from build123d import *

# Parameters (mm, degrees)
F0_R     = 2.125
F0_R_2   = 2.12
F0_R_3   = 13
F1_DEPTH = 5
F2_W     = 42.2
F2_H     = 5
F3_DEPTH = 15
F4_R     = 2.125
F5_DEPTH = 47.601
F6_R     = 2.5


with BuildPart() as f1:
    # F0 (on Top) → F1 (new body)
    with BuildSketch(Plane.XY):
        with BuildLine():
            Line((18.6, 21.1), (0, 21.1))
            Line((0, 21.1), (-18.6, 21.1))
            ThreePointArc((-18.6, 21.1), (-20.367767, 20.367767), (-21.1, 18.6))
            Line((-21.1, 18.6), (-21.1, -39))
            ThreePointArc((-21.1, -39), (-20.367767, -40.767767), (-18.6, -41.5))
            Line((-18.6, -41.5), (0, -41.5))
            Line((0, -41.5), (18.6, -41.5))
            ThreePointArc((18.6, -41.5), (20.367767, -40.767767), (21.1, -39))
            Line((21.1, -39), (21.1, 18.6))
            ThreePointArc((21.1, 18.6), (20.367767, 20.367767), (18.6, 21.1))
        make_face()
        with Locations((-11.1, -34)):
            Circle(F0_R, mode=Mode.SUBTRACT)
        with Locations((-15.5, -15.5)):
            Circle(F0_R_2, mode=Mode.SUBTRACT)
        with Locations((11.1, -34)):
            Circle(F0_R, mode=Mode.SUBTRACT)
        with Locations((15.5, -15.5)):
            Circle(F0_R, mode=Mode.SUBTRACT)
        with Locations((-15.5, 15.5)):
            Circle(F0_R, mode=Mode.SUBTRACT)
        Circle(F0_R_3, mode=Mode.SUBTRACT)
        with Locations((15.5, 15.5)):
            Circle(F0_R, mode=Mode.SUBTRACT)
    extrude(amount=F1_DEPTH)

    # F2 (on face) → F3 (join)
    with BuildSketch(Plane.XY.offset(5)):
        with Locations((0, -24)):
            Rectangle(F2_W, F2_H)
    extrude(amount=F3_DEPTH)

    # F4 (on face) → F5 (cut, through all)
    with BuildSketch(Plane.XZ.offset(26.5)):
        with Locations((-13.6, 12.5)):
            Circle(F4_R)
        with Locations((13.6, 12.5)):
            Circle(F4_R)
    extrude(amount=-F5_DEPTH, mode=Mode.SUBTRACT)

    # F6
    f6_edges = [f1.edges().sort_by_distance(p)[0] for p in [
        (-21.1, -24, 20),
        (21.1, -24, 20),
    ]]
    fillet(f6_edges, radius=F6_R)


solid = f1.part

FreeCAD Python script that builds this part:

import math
import FreeCAD as App
import Part
import Sketcher
from FreeCAD import Vector
Q = App.Units.Quantity


def edges_at(feature, points):
    """Names of the edges that pass closest to the given points."""
    edges = feature.Shape.Edges
    near = lambda p: min(range(len(edges)), key=lambda i: edges[i].distToShape(Part.Vertex(*p))[0])
    return sorted({f"Edge{near(p) + 1}" for p in points})

doc = App.newDocument("Part")
body = doc.addObject("PartDesign::Body", "Body")

sketch1 = doc.addObject("Sketcher::SketchObject", "Sketch")
body.addObject(sketch1)
sketch1.AttachmentSupport = (doc.XY_Plane, [""])
sketch1.MapMode = "FlatFace"
sketch1.addGeometry([
    Part.LineSegment(Vector(18.6, 21.1, 0), Vector(-18.6, 21.1, 0)),
    Part.ArcOfCircle(Part.Circle(Vector(-18.6, 18.6, 0), Vector(0, 0, 1), 2.5), math.radians(90), math.radians(180)),
    Part.LineSegment(Vector(-21.1, 18.6, 0), Vector(-21.1, -39, 0)),
    Part.ArcOfCircle(Part.Circle(Vector(-18.6, -39, 0), Vector(0, 0, 1), 2.5), math.radians(180), math.radians(270)),
    Part.LineSegment(Vector(-18.6, -41.5, 0), Vector(18.6, -41.5, 0)),
    Part.ArcOfCircle(Part.Circle(Vector(18.6, -39, 0), Vector(0, 0, 1), 2.5), math.radians(-90), math.radians(0)),
    Part.LineSegment(Vector(21.1, -39, 0), Vector(21.1, 18.6, 0)),
    Part.ArcOfCircle(Part.Circle(Vector(18.6, 18.6, 0), Vector(0, 0, 1), 2.5), math.radians(0), math.radians(90)),
    Part.Circle(Vector(-11.1, -34, 0), Vector(0, 0, 1), 2.1),
    Part.Circle(Vector(-15.5, -15.5, 0), Vector(0, 0, 1), 2.1),
    Part.Circle(Vector(11.1, -34, 0), Vector(0, 0, 1), 2.1),
    Part.Circle(Vector(15.5, -15.5, 0), Vector(0, 0, 1), 2.1),
    Part.Circle(Vector(-15.5, 15.5, 0), Vector(0, 0, 1), 2.1),
    Part.Circle(Vector(0, 0, 0), Vector(0, 0, 1), 13),
    Part.Circle(Vector(15.5, 15.5, 0), Vector(0, 0, 1), 2.1),
], False)
sketch1.addConstraint([
    Sketcher.Constraint("Tangent", 0, 2, 1, 1),
    Sketcher.Constraint("Tangent", 1, 2, 2, 1),
    Sketcher.Constraint("Tangent", 2, 2, 3, 1),
    Sketcher.Constraint("Tangent", 3, 2, 4, 1),
    Sketcher.Constraint("Tangent", 4, 2, 5, 1),
    Sketcher.Constraint("Tangent", 5, 2, 6, 1),
    Sketcher.Constraint("Tangent", 6, 2, 7, 1),
    Sketcher.Constraint("Tangent", 7, 2, 0, 1),
    Sketcher.Constraint("Horizontal", 0),
    Sketcher.Constraint("Vertical", 2),
    Sketcher.Constraint("Horizontal", 4),
    Sketcher.Constraint("Vertical", 6),
    Sketcher.Constraint("Coincident", 13, 3, -1, 1),
    Sketcher.Constraint("Equal", 1, 3),
    Sketcher.Constraint("Equal", 3, 5),
    Sketcher.Constraint("Equal", 5, 7),
    Sketcher.Constraint("Equal", 8, 10),
    Sketcher.Constraint("Equal", 10, 11),
    Sketcher.Constraint("Equal", 11, 12),
    Sketcher.Constraint("Equal", 12, 14),
    Sketcher.Constraint("Symmetric", 11, 3, 12, 3, -1, 1),
    Sketcher.Constraint("Symmetric", 9, 3, 14, 3, -1, 1),
    Sketcher.Constraint("Symmetric", 8, 3, 10, 3, -2),
    Sketcher.Constraint("Symmetric", 9, 3, 11, 3, -2),
    Sketcher.Constraint("Diameter", 13, Q("26 mm")),
    Sketcher.Constraint("Radius", 1, Q("2.5 mm")),
    Sketcher.Constraint("Diameter", 8, Q("4.25 mm")),
    Sketcher.Constraint("Diameter", 9, Q("4.24 mm")),
    Sketcher.Constraint("DistanceX", 0, 2, 0, 1, Q("37.2 mm")),
    Sketcher.Constraint("DistanceY", 2, 2, 2, 1, Q("57.6 mm")),
    Sketcher.Constraint("DistanceY", 3, 3, -1, 1, Q("39 mm")),
    Sketcher.Constraint("DistanceY", 8, 3, -1, 1, Q("34 mm")),
    Sketcher.Constraint("DistanceX", 9, 3, 11, 3, Q("31 mm")),
    Sketcher.Constraint("DistanceY", 9, 3, 12, 3, Q("31 mm")),
    Sketcher.Constraint("DistanceX", 2, 2, 8, 3, Q("10 mm")),
    Sketcher.Constraint("DistanceX", 10, 3, 5, 2, Q("10 mm")),
])
pad1 = doc.addObject("PartDesign::Pad", "Pad")
body.addObject(pad1)
pad1.Profile = sketch1
pad1.Length = 5

sketch2 = doc.addObject("Sketcher::SketchObject", "Sketch001")
body.addObject(sketch2)
sketch2.AttachmentSupport = (doc.XY_Plane, [""])
sketch2.MapMode = "FlatFace"
sketch2.AttachmentOffset = App.Placement(Vector(0, 0, 5), App.Rotation())
sketch2.addGeometry([
    Part.LineSegment(Vector(-21, -22, 0), Vector(-21, -26, 0)),
    Part.LineSegment(Vector(-21, -26, 0), Vector(21, -26, 0)),
    Part.LineSegment(Vector(21, -26, 0), Vector(21, -22, 0)),
    Part.LineSegment(Vector(21, -22, 0), Vector(-21, -22, 0)),
], False)
sketch2.addConstraint([
    Sketcher.Constraint("Coincident", 0, 2, 1, 1),
    Sketcher.Constraint("Coincident", 1, 2, 2, 1),
    Sketcher.Constraint("Coincident", 2, 2, 3, 1),
    Sketcher.Constraint("Coincident", 3, 2, 0, 1),
    Sketcher.Constraint("Vertical", 0),
    Sketcher.Constraint("Horizontal", 1),
    Sketcher.Constraint("Vertical", 2),
    Sketcher.Constraint("Horizontal", 3),
    Sketcher.Constraint("DistanceY", 0, 2, 0, 1, Q("5 mm")),
    Sketcher.Constraint("DistanceX", 1, 1, 1, 2, Q("42.2 mm")),
    Sketcher.Constraint("DistanceX", 0, 2, -1, 1, Q("21.1 mm")),
    Sketcher.Constraint("DistanceY", 0, 2, -1, 1, Q("26.5 mm")),
])
pad2 = doc.addObject("PartDesign::Pad", "Pad001")
body.addObject(pad2)
pad2.Profile = sketch2
pad2.Length = 15

sketch3 = doc.addObject("Sketcher::SketchObject", "Sketch002")
body.addObject(sketch3)
sketch3.AttachmentSupport = (doc.XZ_Plane, [""])
sketch3.MapMode = "FlatFace"
sketch3.AttachmentOffset = App.Placement(Vector(0, 0, 26.5), App.Rotation())
sketch3.addGeometry([
    Part.Circle(Vector(-13.6, 12.5, 0), Vector(0, 0, 1), 2.1),
    Part.Circle(Vector(13.6, 12.5, 0), Vector(0, 0, 1), 2.1),
], False)
sketch3.addConstraint([
    Sketcher.Constraint("Equal", 0, 1),
    Sketcher.Constraint("Symmetric", 0, 3, 1, 3, -2),
    Sketcher.Constraint("Diameter", 0, Q("4.25 mm")),
    Sketcher.Constraint("DistanceX", 0, 3, -1, 1, Q("13.6 mm")),
    Sketcher.Constraint("DistanceY", -1, 1, 0, 3, Q("12.5 mm")),
])
pocket1 = doc.addObject("PartDesign::Pocket", "Pocket")
body.addObject(pocket1)
pocket1.Profile = sketch3
pocket1.Type = "ThroughAll"
doc.recompute()

fillet = doc.addObject("PartDesign::Fillet", "Fillet")
body.addObject(fillet)
fillet.Base = (pocket1, edges_at(pocket1, [(-21.1, -24, 20), (21.1, -24, 20)]))
fillet.Radius = 2.5

doc.recompute()
